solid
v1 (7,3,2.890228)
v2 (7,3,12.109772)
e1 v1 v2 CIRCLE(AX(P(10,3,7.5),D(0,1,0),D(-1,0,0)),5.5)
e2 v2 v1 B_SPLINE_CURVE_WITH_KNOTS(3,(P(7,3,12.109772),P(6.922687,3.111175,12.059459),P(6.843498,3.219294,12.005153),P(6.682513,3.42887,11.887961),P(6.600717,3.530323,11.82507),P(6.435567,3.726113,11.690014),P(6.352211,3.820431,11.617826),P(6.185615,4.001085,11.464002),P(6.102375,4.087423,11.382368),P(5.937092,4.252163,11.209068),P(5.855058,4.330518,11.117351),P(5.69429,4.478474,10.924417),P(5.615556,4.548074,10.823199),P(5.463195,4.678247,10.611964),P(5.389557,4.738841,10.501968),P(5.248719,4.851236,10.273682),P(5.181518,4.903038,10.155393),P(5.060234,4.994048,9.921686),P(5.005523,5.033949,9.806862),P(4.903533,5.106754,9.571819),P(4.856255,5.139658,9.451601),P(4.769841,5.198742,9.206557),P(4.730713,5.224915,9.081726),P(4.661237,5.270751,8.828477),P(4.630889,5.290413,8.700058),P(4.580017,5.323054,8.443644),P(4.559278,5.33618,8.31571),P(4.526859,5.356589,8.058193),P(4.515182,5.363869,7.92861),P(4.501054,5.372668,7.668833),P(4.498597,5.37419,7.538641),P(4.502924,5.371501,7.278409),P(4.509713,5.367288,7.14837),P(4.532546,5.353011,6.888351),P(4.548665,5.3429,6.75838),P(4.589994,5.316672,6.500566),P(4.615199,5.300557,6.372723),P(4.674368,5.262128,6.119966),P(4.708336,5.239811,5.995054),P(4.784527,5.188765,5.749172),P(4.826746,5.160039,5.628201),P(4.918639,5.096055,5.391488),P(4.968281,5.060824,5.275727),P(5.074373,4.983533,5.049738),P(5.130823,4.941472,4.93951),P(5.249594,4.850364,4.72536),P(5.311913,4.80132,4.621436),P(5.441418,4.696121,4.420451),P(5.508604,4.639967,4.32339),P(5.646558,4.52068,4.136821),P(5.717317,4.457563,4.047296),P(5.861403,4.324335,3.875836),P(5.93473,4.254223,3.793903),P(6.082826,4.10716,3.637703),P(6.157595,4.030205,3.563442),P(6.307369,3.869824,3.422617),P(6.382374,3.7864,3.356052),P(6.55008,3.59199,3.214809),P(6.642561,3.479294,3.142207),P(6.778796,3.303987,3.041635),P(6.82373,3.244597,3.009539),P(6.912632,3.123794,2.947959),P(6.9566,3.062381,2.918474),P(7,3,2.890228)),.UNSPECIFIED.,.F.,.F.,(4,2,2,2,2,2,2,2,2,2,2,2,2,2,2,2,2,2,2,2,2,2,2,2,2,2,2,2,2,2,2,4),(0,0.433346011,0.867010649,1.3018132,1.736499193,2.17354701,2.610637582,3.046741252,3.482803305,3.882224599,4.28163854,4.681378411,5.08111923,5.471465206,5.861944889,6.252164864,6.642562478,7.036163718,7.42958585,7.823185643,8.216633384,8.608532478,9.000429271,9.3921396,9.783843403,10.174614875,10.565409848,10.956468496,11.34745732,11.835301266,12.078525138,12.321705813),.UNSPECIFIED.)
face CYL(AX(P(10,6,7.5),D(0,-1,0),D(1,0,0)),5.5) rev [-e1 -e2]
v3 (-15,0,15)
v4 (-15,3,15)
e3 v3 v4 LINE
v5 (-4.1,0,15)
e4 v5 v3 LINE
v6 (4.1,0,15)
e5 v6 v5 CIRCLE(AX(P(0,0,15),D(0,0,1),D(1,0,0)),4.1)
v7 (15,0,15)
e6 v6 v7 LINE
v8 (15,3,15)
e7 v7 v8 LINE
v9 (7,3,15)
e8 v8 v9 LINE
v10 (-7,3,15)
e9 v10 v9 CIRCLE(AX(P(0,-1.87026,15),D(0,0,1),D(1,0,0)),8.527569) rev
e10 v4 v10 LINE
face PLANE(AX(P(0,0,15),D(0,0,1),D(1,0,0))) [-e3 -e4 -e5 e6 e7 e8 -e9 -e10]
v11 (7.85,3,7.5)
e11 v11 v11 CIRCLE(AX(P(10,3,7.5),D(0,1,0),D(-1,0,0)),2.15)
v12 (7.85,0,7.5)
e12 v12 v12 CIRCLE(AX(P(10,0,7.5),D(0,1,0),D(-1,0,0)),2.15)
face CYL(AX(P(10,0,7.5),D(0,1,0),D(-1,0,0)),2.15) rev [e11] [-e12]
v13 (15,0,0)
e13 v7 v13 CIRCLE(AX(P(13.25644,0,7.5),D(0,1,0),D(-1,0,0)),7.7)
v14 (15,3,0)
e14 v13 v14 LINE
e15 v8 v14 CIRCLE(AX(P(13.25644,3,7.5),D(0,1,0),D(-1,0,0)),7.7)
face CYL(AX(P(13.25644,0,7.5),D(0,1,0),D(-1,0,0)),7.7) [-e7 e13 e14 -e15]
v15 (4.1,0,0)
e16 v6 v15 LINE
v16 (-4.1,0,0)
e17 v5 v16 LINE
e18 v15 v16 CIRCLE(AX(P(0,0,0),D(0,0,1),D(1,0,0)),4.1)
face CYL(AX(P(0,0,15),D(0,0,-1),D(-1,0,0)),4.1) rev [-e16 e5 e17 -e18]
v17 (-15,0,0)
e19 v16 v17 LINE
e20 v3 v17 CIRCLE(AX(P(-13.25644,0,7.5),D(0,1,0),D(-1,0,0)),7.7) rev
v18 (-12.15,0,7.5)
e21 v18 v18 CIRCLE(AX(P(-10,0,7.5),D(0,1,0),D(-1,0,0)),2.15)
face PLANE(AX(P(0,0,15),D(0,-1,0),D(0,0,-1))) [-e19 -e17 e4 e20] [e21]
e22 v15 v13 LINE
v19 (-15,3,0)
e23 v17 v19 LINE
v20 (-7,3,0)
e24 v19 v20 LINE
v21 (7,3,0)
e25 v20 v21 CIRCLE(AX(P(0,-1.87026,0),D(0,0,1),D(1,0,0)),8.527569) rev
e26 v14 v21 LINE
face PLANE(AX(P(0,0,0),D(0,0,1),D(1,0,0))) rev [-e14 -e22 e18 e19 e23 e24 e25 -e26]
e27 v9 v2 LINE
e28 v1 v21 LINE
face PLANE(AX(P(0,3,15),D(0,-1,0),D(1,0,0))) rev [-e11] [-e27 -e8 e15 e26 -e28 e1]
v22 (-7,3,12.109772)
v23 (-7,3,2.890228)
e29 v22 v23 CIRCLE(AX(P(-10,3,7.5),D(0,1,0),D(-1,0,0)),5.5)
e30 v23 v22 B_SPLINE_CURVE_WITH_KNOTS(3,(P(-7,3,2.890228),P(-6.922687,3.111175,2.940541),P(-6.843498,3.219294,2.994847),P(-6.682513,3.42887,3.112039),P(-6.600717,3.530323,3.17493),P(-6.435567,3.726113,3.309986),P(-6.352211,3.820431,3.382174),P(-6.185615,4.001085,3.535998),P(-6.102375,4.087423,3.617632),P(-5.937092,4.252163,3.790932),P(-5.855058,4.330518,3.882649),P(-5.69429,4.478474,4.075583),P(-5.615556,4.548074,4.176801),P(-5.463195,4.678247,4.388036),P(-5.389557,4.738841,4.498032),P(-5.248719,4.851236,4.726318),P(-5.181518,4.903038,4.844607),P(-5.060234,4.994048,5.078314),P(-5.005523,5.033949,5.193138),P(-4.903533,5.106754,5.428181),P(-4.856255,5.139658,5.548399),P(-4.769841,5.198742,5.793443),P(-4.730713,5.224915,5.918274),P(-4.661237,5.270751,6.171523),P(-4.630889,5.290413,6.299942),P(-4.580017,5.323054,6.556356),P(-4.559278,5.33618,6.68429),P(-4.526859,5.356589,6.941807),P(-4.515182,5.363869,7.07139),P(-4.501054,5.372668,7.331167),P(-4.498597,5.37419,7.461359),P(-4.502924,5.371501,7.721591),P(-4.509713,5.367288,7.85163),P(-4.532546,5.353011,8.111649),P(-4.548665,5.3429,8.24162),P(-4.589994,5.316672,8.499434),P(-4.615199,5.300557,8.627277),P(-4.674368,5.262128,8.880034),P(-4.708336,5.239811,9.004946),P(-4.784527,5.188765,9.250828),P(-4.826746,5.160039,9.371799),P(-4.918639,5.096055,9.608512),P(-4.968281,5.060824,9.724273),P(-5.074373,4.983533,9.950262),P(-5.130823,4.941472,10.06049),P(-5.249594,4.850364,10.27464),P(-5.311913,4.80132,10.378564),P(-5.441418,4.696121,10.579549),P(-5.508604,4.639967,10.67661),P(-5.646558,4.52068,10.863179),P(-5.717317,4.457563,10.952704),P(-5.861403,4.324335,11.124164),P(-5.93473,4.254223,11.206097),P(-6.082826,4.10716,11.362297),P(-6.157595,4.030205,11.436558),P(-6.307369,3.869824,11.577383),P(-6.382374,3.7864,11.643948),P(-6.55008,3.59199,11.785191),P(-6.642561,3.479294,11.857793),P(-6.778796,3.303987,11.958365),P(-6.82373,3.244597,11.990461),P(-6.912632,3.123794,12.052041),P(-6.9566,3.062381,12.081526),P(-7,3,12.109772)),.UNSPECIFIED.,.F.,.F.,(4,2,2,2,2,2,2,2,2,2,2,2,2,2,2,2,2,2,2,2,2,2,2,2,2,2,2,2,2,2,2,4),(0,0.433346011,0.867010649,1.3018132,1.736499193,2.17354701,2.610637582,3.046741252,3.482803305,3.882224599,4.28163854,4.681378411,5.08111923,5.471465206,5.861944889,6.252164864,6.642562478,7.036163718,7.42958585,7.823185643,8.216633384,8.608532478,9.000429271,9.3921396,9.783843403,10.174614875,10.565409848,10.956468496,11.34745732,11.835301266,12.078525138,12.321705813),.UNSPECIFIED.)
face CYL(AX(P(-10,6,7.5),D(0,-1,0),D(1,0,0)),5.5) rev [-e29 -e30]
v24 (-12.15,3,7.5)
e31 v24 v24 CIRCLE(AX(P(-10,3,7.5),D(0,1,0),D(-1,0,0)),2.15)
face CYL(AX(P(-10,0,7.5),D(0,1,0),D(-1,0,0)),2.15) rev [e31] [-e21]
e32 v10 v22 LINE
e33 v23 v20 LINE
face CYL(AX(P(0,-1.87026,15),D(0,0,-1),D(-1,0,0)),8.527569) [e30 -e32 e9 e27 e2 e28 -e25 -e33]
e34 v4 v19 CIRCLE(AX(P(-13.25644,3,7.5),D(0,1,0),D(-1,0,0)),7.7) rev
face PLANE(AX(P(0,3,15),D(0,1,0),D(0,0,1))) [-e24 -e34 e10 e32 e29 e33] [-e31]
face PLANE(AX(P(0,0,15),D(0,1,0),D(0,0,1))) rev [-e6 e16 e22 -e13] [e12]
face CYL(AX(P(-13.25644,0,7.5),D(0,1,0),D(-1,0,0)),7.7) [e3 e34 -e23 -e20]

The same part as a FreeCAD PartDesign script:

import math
import FreeCAD as App
import Part
import Sketcher
from FreeCAD import Vector
Q = App.Units.Quantity

doc = App.newDocument("Part")
params = doc.addObject("Spreadsheet::Sheet", "Params")
for row, (alias, value) in enumerate([
    ("sketch1_radius", "4.1 mm"),
    ("sketch1_width", "8 mm"),
    ("sketch1_height", "3 mm"),
    ("sketch1_width2", "10.9 mm"),
    ("pad1_length", "15 mm"),
    ("sketch2_radius", "7.7 mm"),
    ("sketch2_height", "15 mm"),
    ("pad2_length", "3 mm"),
    ("sketch3_diameter", "11 mm"),
    ("pocket1_length", "3 mm"),
    ("sketch4_diameter", "4.3 mm"),
    ("pocket2_length", "3 mm"),
], start=1):
    params.set(f"A{row}", alias)
    params.set(f"B{row}", "=" + value)
    params.setAlias(f"B{row}", alias)

body = doc.addObject("PartDesign::Body", "Body")

# Sketch on XY plane
sketch1 = body.newObject("Sketcher::SketchObject", "Sketch")
sketch1.AttachmentSupport = (doc.getObject("XY_Plane"), [""])
sketch1.MapMode = "FlatFace"
sketch1.addGeometry([
    Part.ArcOfCircle(Part.Circle(Vector(0, 0, 0), Vector(0, 0, 1), 4.1), math.radians(0), math.radians(180)),  # 0
    Part.LineSegment(Vector(4.1, 0, 0), Vector(15, 0, 0)),  # 1
    Part.LineSegment(Vector(15, 0, 0), Vector(15, 3, 0)),  # 2
    Part.LineSegment(Vector(15, 3, 0), Vector(7, 3, 0)),  # 3
    Part.ArcOfCircle(Part.Circle(Vector(0, -1.87026, 0), Vector(0, 0, 1), 8.527569), math.radians(34.828323), math.radians(145.171677)),  # 4
    Part.LineSegment(Vector(-7, 3, 0), Vector(-15, 3, 0)),  # 5
    Part.LineSegment(Vector(-15, 3, 0), Vector(-15, 0, 0)),  # 6
    Part.LineSegment(Vector(-15, 0, 0), Vector(-4.1, 0, 0)),  # 7
], False)
sketch1.addConstraint([
    Sketcher.Constraint("Coincident", 0, 1, 1, 1),
    Sketcher.Constraint("Coincident", 1, 2, 2, 1),
    Sketcher.Constraint("Coincident", 2, 2, 3, 1),
    Sketcher.Constraint("Coincident", 3, 2, 4, 1),
    Sketcher.Constraint("Coincident", 4, 2, 5, 1),
    Sketcher.Constraint("Coincident", 5, 2, 6, 1),
    Sketcher.Constraint("Coincident", 6, 2, 7, 1),
    Sketcher.Constraint("Coincident", 7, 2, 0, 2),
    Sketcher.Constraint("Horizontal", 1),
    Sketcher.Constraint("Vertical", 2),
    Sketcher.Constraint("Horizontal", 3),
    Sketcher.Constraint("Horizontal", 5),
    Sketcher.Constraint("Vertical", 6),
    Sketcher.Constraint("Horizontal", 7),
    Sketcher.Constraint("Coincident", 0, 3, -1, 1),
    Sketcher.Constraint("Symmetric", 1, 2, 6, 2, -1, 1),
    Sketcher.Constraint("Symmetric", 3, 2, 4, 2, -2),
    Sketcher.Constraint("PointOnObject", 0, 1, -1),
    Sketcher.Constraint("Radius", 0, Q("4.1 mm")),
    Sketcher.Constraint("DistanceX", 3, 2, 3, 1, Q("8 mm")),
    Sketcher.Constraint("DistanceY", 2, 1, 2, 2, Q("3 mm")),
    Sketcher.Constraint("DistanceX", 1, 1, 1, 2, Q("10.9 mm")),
    Sketcher.Constraint("Radius", 4, Q("8.527569 mm")),
])
sketch1.setExpression("Constraints[18]", "Params.sketch1_radius")
sketch1.setExpression("Constraints[19]", "Params.sketch1_width")
sketch1.setExpression("Constraints[20]", "Params.sketch1_height")
sketch1.setExpression("Constraints[21]", "Params.sketch1_width2")
pad1 = body.newObject("PartDesign::Pad", "Pad")
pad1.Profile = sketch1
pad1.setExpression("Length", "Params.pad1_length")

# Sketch on XZ plane
sketch2 = body.newObject("Sketcher::SketchObject", "Sketch001")
sketch2.AttachmentSupport = (doc.getObject("XZ_Plane"), [""])
sketch2.MapMode = "FlatFace"
sketch2.AttachmentOffset = App.Placement(Vector(0, 0, -3), App.Rotation())
sketch2.addGeometry([
    Part.ArcOfCircle(Part.Circle(Vector(13.25644, 7.5, 0), Vector(0, 0, 1), 7.7), math.radians(-76.912647), math.radians(76.912647)),
    Part.LineSegment(Vector(15, 0, 0), Vector(15, 15, 0)),
    Part.LineSegment(Vector(-15, 15, 0), Vector(-15, 0, 0)),
    Part.ArcOfCircle(Part.Circle(Vector(-13.25644, 7.5, 0), Vector(0, 0, 1), 7.7), math.radians(103.087353), math.radians(256.912647)),
], False)
sketch2.addConstraint([
    Sketcher.Constraint("Coincident", 0, 1, 1, 1),
    Sketcher.Constraint("Coincident", 1, 2, 0, 2),
    Sketcher.Constraint("Coincident", 2, 1, 3, 1),
    Sketcher.Constraint("Coincident", 3, 2, 2, 2),
    Sketcher.Constraint("Vertical", 1),
    Sketcher.Constraint("Vertical", 2),
    Sketcher.Constraint("Equal", 0, 3),
    Sketcher.Constraint("Symmetric", 0, 1, 3, 2, -1, 1),
    Sketcher.Constraint("Symmetric", 0, 3, 3, 3, -2),
    Sketcher.Constraint("Radius", 0, Q("7.7 mm")),
    Sketcher.Constraint("DistanceY", 1, 1, 1, 2, Q("15 mm")),
    Sketcher.Constraint("DistanceX", -1, 1, 0, 1, Q("15 mm")),
])
sketch2.setExpression("Constraints[9]", "Params.sketch2_radius")
sketch2.setExpression("Constraints[10]", "Params.sketch2_height")
pad2 = body.newObject("PartDesign::Pad", "Pad001")
pad2.Profile = sketch2
pad2.setExpression("Length", "Params.pad2_length")

# Sketch on XZ plane
sketch3 = body.newObject("Sketcher::SketchObject", "Sketch002")
sketch3.AttachmentSupport = (doc.getObject("XZ_Plane"), [""])
sketch3.MapMode = "FlatFace"
sketch3.AttachmentOffset = App.Placement(Vector(0, 0, -3), App.Rotation())
sketch3.addGeometry([
    Part.Circle(Vector(-10, 7.5, 0), Vector(0, 0, 1), 5.5),
    Part.Circle(Vector(10, 7.5, 0), Vector(0, 0, 1), 5.5),
], False)
sketch3.addConstraint([
    Sketcher.Constraint("Equal", 0, 1),
    Sketcher.Constraint("Symmetric", 0, 3, 1, 3, -2),
    Sketcher.Constraint("Diameter", 0, Q("11 mm")),
    Sketcher.Constraint("DistanceX", 0, 3, -1, 1, Q("10 mm")),
    Sketcher.Constraint("DistanceY", -1, 1, 0, 3, Q("7.5 mm")),
])
sketch3.setExpression("Constraints[2]", "Params.sketch3_diameter")
pocket1 = body.newObject("PartDesign::Pocket", "Pocket")
pocket1.Profile = sketch3
pocket1.setExpression("Length", "Params.pocket1_length")

# Sketch on XZ plane
sketch4 = body.newObject("Sketcher::SketchObject", "Sketch003")
sketch4.AttachmentSupport = (doc.getObject("XZ_Plane"), [""])
sketch4.MapMode = "FlatFace"
sketch4.AttachmentOffset = App.Placement(Vector(0, 0, -3), App.Rotation())
sketch4.addGeometry([
    Part.Circle(Vector(10, 7.5, 0), Vector(0, 0, 1), 2.15),
    Part.Circle(Vector(-10, 7.5, 0), Vector(0, 0, 1), 2.15),
], False)
sketch4.addConstraint([
    Sketcher.Constraint("Equal", 0, 1),
    Sketcher.Constraint("Symmetric", 0, 3, 1, 3, -2),
    Sketcher.Constraint("Diameter", 0, Q("4.3 mm")),
    Sketcher.Constraint("DistanceX", -1, 1, 0, 3, Q("10 mm")),
    Sketcher.Constraint("DistanceY", -1, 1, 0, 3, Q("7.5 mm")),
])
sketch4.setExpression("Constraints[2]", "Params.sketch4_diameter")
pocket2 = body.newObject("PartDesign::Pocket", "Pocket001")
pocket2.Profile = sketch4
pocket2.setExpression("Length", "Params.pocket2_length")
pocket2.Reversed = True

doc.recompute()
